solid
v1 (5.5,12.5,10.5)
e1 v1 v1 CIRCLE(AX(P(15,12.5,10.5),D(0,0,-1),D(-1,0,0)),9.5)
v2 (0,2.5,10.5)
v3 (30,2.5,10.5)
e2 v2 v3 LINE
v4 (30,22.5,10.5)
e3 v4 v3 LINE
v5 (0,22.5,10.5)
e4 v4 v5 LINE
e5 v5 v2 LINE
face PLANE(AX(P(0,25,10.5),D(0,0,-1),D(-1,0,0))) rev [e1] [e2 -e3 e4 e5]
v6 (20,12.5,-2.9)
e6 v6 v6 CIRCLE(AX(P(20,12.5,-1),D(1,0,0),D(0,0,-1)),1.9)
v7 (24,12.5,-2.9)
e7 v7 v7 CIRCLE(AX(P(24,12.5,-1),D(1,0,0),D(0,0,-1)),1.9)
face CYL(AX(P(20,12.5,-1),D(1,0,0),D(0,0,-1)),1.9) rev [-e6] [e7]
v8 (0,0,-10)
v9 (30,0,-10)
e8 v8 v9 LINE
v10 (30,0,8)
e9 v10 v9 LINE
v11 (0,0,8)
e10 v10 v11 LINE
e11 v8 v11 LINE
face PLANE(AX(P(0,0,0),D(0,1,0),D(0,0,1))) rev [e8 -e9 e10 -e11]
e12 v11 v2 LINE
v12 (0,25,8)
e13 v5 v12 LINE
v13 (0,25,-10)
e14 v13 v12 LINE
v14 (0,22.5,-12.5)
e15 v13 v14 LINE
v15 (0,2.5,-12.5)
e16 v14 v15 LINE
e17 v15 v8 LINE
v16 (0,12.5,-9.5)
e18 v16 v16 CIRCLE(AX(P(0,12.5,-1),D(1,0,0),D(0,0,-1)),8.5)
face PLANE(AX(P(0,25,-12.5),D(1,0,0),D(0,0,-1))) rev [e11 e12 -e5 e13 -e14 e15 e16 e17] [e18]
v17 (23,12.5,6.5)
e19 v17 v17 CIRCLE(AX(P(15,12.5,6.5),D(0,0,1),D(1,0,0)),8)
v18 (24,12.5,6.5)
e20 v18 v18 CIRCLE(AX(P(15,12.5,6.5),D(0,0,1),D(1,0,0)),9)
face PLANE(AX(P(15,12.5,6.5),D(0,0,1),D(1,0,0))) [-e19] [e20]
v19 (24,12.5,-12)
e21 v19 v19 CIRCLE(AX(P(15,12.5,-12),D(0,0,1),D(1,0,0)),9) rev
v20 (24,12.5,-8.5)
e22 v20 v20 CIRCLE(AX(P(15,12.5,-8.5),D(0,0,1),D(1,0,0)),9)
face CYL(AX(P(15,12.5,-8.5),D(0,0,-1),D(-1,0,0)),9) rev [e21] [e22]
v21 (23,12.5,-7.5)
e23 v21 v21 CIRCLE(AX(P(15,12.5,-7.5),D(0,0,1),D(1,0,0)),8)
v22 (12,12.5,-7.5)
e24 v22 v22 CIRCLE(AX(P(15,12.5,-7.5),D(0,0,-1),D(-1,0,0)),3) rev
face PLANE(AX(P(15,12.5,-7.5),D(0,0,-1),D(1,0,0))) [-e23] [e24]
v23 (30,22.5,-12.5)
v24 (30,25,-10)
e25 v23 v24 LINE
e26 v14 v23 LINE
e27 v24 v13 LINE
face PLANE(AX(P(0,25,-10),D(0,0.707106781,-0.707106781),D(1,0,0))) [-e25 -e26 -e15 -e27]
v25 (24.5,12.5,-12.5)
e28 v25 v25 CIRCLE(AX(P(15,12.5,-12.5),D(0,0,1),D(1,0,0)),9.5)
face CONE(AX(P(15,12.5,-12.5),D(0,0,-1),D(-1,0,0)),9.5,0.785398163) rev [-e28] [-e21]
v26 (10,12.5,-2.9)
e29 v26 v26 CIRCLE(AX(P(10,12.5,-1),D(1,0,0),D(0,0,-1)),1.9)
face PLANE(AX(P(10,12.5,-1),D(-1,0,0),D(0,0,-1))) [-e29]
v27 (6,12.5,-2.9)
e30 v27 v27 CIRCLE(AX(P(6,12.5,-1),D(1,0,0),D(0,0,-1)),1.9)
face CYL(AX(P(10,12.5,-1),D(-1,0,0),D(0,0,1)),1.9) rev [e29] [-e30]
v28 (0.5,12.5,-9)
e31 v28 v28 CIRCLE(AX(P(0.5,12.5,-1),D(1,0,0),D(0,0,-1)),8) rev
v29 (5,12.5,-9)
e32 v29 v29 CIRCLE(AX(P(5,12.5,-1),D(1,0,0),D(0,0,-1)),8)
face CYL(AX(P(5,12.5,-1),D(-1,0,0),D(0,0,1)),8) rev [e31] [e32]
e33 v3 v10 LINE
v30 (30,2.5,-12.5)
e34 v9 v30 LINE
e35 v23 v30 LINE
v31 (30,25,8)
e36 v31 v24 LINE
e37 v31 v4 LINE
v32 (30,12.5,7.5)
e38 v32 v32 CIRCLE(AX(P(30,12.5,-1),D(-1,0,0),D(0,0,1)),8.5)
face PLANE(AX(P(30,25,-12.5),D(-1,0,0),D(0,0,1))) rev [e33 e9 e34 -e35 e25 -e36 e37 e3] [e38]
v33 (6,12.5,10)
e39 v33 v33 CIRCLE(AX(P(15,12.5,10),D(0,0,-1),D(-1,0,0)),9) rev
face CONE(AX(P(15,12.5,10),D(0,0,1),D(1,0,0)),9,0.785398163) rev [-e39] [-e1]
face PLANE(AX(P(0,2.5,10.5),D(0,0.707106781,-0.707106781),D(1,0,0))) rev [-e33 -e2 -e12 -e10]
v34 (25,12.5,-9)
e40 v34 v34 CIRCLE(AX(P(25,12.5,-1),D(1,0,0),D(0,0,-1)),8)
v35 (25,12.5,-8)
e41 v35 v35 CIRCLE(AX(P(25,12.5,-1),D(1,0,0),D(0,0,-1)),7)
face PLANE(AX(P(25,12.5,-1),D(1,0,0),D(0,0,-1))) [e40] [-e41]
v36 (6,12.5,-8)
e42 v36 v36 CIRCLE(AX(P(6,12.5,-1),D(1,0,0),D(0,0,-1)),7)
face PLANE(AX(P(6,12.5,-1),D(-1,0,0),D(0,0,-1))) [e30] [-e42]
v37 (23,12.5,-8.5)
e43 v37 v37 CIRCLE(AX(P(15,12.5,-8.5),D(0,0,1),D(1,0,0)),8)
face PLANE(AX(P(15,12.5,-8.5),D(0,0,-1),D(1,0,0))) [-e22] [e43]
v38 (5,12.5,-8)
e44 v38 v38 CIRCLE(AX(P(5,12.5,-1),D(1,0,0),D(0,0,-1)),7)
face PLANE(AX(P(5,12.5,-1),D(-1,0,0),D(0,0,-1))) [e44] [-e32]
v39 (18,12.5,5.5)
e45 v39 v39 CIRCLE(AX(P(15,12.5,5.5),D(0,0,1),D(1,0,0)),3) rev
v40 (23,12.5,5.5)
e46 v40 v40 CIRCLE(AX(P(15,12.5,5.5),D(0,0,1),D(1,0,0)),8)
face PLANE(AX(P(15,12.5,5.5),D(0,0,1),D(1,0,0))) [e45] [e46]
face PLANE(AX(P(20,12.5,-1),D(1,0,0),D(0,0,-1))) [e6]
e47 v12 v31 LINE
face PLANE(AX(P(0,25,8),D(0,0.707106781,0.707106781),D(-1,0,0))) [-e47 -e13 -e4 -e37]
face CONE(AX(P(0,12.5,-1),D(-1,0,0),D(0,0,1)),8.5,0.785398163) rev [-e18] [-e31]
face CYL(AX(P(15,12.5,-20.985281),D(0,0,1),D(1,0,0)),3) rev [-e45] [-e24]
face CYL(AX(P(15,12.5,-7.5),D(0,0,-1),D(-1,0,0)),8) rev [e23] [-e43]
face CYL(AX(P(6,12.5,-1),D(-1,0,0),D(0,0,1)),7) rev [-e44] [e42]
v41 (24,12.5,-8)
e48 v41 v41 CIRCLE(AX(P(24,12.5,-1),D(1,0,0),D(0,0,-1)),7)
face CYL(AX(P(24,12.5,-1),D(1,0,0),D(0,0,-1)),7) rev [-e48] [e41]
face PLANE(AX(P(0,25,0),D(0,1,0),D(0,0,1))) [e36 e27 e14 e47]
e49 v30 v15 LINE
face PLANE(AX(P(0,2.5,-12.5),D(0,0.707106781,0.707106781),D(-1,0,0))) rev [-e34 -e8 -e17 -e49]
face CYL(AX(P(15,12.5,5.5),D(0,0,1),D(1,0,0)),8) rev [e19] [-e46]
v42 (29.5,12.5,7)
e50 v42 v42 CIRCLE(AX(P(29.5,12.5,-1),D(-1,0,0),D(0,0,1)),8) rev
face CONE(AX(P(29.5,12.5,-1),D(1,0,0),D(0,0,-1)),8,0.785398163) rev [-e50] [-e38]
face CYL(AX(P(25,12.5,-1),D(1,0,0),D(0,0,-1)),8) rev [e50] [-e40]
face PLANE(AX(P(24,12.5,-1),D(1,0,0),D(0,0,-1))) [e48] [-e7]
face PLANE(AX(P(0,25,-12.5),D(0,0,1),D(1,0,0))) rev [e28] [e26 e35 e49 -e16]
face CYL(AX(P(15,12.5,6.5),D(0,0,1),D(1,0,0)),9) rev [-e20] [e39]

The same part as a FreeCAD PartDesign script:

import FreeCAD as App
import Part
import Sketcher
from FreeCAD import Vector
Q = App.Units.Quantity


def edges_at(feature, points):
    """Names of the edges that pass closest to the given points."""
    edges = feature.Shape.Edges
    near = lambda p: min(range(len(edges)), key=lambda i: edges[i].distToShape(Part.Vertex(*p))[0])
    return sorted({f"Edge{near(p) + 1}" for p in points})


def add_polygon(sketch, points):
    """Adds a closed chain of lines whose ends are joined by coincident constraints."""
    first, n = sketch.GeometryCount, len(points)
    for a, b in zip(points, points[1:] + points[:1]):
        sketch.addGeometry(Part.LineSegment(App.Vector(*a, 0), App.Vector(*b, 0)), False)
    for i in range(n):
        sketch.addConstraint(Sketcher.Constraint("Coincident", first + i, 2, first + (i + 1) % n, 1))

doc = App.newDocument("Part")
params = doc.addObject("Spreadsheet::Sheet", "Params")
for row, (alias, value) in enumerate([
    ("sketch1_width", "30 mm"),
    ("sketch1_height", "23 mm"),
    ("pad1_length", "25 mm"),
    ("sketch2_diameter", "16 mm"),
    ("pocket1_length", "5 mm"),
    ("sketch3_diameter", "14 mm"),
    ("pocket2_length", "1 mm"),
    ("sketch4_diameter", "3.8 mm"),
    ("pocket3_length", "4 mm"),
    ("sketch5_diameter", "18 mm"),
    ("pocket4_length", "4 mm"),
    ("sketch6_diameter", "6 mm"),
    ("pocket5_length", "19 mm"),
    ("sketch7_diameter", "16 mm"),
    ("pocket6_length", "1 mm"),
    ("chamfer_size", "2.5 mm"),
    ("chamfer2_size", "0.5 mm"),
], start=1):
    params.set(f"A{row}", alias)
    params.set(f"B{row}", "=" + value)
    params.setAlias(f"B{row}", alias)

body = doc.addObject("PartDesign::Body", "Body")

sketch1 = body.newObject("Sketcher::SketchObject", "Sketch")
sketch1.AttachmentSupport = (doc.getObject("XZ_Plane"), [""])
sketch1.MapMode = "FlatFace"
add_polygon(sketch1, [(0, -12.5), (0, 10.5), (30, 10.5), (30, -12.5)])
sketch1.addConstraint(Sketcher.Constraint("Vertical", 0))
sketch1.addConstraint(Sketcher.Constraint("Horizontal", 1))
sketch1.addConstraint(Sketcher.Constraint("Vertical", 2))
sketch1.addConstraint(Sketcher.Constraint("Horizontal", 3))
sketch1.addConstraint(Sketcher.Constraint("PointOnObject", 0, 2, -2))
sketch1.addConstraint(Sketcher.Constraint("DistanceX", 1, 1, 1, 2, Q("30 mm")))
sketch1.addConstraint(Sketcher.Constraint("DistanceY", 0, 1, 0, 2, Q("23 mm")))
sketch1.addConstraint(Sketcher.Constraint("DistanceY", -1, 1, 0, 2, Q("10.5 mm")))
sketch1.setExpression("Constraints[9]", "Params.sketch1_width")
sketch1.setExpression("Constraints[10]", "Params.sketch1_height")
pad1 = body.newObject("PartDesign::Pad", "Pad")
pad1.Profile = sketch1
pad1.setExpression("Length", "Params.pad1_length")
pad1.Reversed = True

sketch2 = body.newObject("Sketcher::SketchObject", "Sketch001")
sketch2.AttachmentSupport = (doc.getObject("YZ_Plane"), [""])
sketch2.MapMode = "FlatFace"
sketch2.AttachmentOffset = App.Placement(Vector(0, 0, 30), App.Rotation())
sketch2.addGeometry(Part.Circle(Vector(12.5, -1, 0), Vector(0, 0, 1), 8), False)
sketch2.addConstraint(Sketcher.Constraint("Diameter", 0, Q("16 mm")))
sketch2.addConstraint(Sketcher.Constraint("DistanceY", 0, 3, -1, 1, Q("1 mm")))
sketch2.addConstraint(Sketcher.Constraint("DistanceX", -1, 1, 0, 3, Q("12.5 mm")))
sketch2.setExpression("Constraints[0]", "Params.sketch2_diameter")
pocket1 = body.newObject("PartDesign::Pocket", "Pocket")
pocket1.Profile = sketch2
pocket1.setExpression("Length", "Params.pocket1_length")

sketch3 = body.newObject("Sketcher::SketchObject", "Sketch002")
sketch3.AttachmentSupport = (doc.getObject("YZ_Plane"), [""])
sketch3.MapMode = "FlatFace"
sketch3.AttachmentOffset = App.Placement(Vector(0, 0, 25), App.Rotation())
sketch3.addGeometry(Part.Circle(Vector(12.5, -1, 0), Vector(0, 0, 1), 7), False)
sketch3.addConstraint(Sketcher.Constraint("Diameter", 0, Q("14 mm")))
sketch3.addConstraint(Sketcher.Constraint("DistanceY", 0, 3, -1, 1, Q("1 mm")))
sketch3.addConstraint(Sketcher.Constraint("DistanceX", -1, 1, 0, 3, Q("12.5 mm")))
sketch3.setExpression("Constraints[0]", "Params.sketch3_diameter")
pocket2 = body.newObject("PartDesign::Pocket", "Pocket001")
pocket2.Profile = sketch3
pocket2.setExpression("Length", "Params.pocket2_length")

sketch4 = body.newObject("Sketcher::SketchObject", "Sketch003")
sketch4.AttachmentSupport = (doc.getObject("YZ_Plane"), [""])
sketch4.MapMode = "FlatFace"
sketch4.AttachmentOffset = App.Placement(Vector(0, 0, 24), App.Rotation())
sketch4.addGeometry(Part.Circle(Vector(12.5, -1, 0), Vector(0, 0, 1), 1.9), False)
sketch4.addConstraint(Sketcher.Constraint("Diameter", 0, Q("3.8 mm")))
sketch4.addConstraint(Sketcher.Constraint("DistanceY", 0, 3, -1, 1, Q("1 mm")))
sketch4.addConstraint(Sketcher.Constraint("DistanceX", -1, 1, 0, 3, Q("12.5 mm")))
sketch4.setExpression("Constraints[0]", "Params.sketch4_diameter")
pocket3 = body.newObject("PartDesign::Pocket", "Pocket002")
pocket3.Profile = sketch4
pocket3.setExpression("Length", "Params.pocket3_length")
doc.recompute()

datumplane = body.newObject("PartDesign::Plane", "DatumPlane")
datumplane.AttachmentSupport = (doc.getObject("YZ_Plane"), [""])
datumplane.MapMode = "FlatFace"
datumplane.AttachmentOffset = App.Placement(Vector(0, 0, 15), App.Rotation())
mirrored = body.newObject("PartDesign::Mirrored", "Mirrored")
mirrored.Originals = [pocket1, pocket2, pocket3]
mirrored.MirrorPlane = (datumplane, [""])
body.Tip = mirrored

sketch5 = body.newObject("Sketcher::SketchObject", "Sketch004")
sketch5.AttachmentSupport = (doc.getObject("XY_Plane"), [""])
sketch5.MapMode = "FlatFace"
sketch5.AttachmentOffset = App.Placement(Vector(0, 0, 10.5), App.Rotation())
sketch5.addGeometry(Part.Circle(Vector(15, 12.5, 0), Vector(0, 0, 1), 9), False)
sketch5.addConstraint(Sketcher.Constraint("Diameter", 0, Q("18 mm")))
sketch5.addConstraint(Sketcher.Constraint("DistanceX", -1, 1, 0, 3, Q("15 mm")))
sketch5.addConstraint(Sketcher.Constraint("DistanceY", -1, 1, 0, 3, Q("12.5 mm")))
sketch5.setExpression("Constraints[0]", "Params.sketch5_diameter")
pocket4 = body.newObject("PartDesign::Pocket", "Pocket003")
pocket4.Profile = sketch5
pocket4.setExpression("Length", "Params.pocket4_length")

sketch6 = body.newObject("Sketcher::SketchObject", "Sketch005")
sketch6.AttachmentSupport = (doc.getObject("XY_Plane"), [""])
sketch6.MapMode = "FlatFace"
sketch6.AttachmentOffset = App.Placement(Vector(0, 0, 6.5), App.Rotation())
sketch6.addGeometry(Part.Circle(Vector(15, 12.5, 0), Vector(0, 0, 1), 3), False)
sketch6.addConstraint(Sketcher.Constraint("Diameter", 0, Q("6 mm")))
sketch6.addConstraint(Sketcher.Constraint("DistanceX", -1, 1, 0, 3, Q("15 mm")))
sketch6.addConstraint(Sketcher.Constraint("DistanceY", -1, 1, 0, 3, Q("12.5 mm")))
sketch6.setExpression("Constraints[0]", "Params.sketch6_diameter")
pocket5 = body.newObject("PartDesign::Pocket", "Pocket004")
pocket5.Profile = sketch6
pocket5.setExpression("Length", "Params.pocket5_length")

sketch7 = body.newObject("Sketcher::SketchObject", "Sketch006")
sketch7.AttachmentSupport = (doc.getObject("XY_Plane"), [""])
sketch7.MapMode = "FlatFace"
sketch7.AttachmentOffset = App.Placement(Vector(0, 0, 6.5), App.Rotation())
sketch7.addGeometry(Part.Circle(Vector(15, 12.5, 0), Vector(0, 0, 1), 8), False)
sketch7.addConstraint(Sketcher.Constraint("Diameter", 0, Q("16 mm")))
sketch7.addConstraint(Sketcher.Constraint("DistanceX", -1, 1, 0, 3, Q("15 mm")))
sketch7.addConstraint(Sketcher.Constraint("DistanceY", -1, 1, 0, 3, Q("12.5 mm")))
sketch7.setExpression("Constraints[0]", "Params.sketch7_diameter")
pocket6 = body.newObject("PartDesign::Pocket", "Pocket005")
pocket6.Profile = sketch7
pocket6.setExpression("Length", "Params.pocket6_length")
doc.recompute()

datumplane2 = body.newObject("PartDesign::Plane", "DatumPlane001")
datumplane2.AttachmentSupport = (doc.getObject("XY_Plane"), [""])
datumplane2.MapMode = "FlatFace"
datumplane2.AttachmentOffset = App.Placement(Vector(0, 0, -1), App.Rotation())
mirrored2 = body.newObject("PartDesign::Mirrored", "Mirrored001")
mirrored2.Originals = [pocket4, pocket6]
mirrored2.MirrorPlane = (datumplane2, [""])
body.Tip = mirrored2
doc.recompute()

chamfer = body.newObject("PartDesign::Chamfer", "Chamfer")
chamfer.Base = (mirrored2, edges_at(mirrored2, [
    (15, 25, -12.5),
    (15, 0, -12.5),
    (15, 0, 10.5),
    (15, 25, 10.5),
]))
chamfer.setExpression("Size", "Params.chamfer_size")
doc.recompute()

chamfer2 = body.newObject("PartDesign::Chamfer", "Chamfer001")
chamfer2.Base = (chamfer, edges_at(chamfer, [
    (30, 12.5, 7),
    (0, 12.5, 7),
    (6, 12.5, 10.5),
    (6, 12.5, -12.5),
]))
chamfer2.setExpression("Size", "Params.chamfer2_size")

doc.recompute()
